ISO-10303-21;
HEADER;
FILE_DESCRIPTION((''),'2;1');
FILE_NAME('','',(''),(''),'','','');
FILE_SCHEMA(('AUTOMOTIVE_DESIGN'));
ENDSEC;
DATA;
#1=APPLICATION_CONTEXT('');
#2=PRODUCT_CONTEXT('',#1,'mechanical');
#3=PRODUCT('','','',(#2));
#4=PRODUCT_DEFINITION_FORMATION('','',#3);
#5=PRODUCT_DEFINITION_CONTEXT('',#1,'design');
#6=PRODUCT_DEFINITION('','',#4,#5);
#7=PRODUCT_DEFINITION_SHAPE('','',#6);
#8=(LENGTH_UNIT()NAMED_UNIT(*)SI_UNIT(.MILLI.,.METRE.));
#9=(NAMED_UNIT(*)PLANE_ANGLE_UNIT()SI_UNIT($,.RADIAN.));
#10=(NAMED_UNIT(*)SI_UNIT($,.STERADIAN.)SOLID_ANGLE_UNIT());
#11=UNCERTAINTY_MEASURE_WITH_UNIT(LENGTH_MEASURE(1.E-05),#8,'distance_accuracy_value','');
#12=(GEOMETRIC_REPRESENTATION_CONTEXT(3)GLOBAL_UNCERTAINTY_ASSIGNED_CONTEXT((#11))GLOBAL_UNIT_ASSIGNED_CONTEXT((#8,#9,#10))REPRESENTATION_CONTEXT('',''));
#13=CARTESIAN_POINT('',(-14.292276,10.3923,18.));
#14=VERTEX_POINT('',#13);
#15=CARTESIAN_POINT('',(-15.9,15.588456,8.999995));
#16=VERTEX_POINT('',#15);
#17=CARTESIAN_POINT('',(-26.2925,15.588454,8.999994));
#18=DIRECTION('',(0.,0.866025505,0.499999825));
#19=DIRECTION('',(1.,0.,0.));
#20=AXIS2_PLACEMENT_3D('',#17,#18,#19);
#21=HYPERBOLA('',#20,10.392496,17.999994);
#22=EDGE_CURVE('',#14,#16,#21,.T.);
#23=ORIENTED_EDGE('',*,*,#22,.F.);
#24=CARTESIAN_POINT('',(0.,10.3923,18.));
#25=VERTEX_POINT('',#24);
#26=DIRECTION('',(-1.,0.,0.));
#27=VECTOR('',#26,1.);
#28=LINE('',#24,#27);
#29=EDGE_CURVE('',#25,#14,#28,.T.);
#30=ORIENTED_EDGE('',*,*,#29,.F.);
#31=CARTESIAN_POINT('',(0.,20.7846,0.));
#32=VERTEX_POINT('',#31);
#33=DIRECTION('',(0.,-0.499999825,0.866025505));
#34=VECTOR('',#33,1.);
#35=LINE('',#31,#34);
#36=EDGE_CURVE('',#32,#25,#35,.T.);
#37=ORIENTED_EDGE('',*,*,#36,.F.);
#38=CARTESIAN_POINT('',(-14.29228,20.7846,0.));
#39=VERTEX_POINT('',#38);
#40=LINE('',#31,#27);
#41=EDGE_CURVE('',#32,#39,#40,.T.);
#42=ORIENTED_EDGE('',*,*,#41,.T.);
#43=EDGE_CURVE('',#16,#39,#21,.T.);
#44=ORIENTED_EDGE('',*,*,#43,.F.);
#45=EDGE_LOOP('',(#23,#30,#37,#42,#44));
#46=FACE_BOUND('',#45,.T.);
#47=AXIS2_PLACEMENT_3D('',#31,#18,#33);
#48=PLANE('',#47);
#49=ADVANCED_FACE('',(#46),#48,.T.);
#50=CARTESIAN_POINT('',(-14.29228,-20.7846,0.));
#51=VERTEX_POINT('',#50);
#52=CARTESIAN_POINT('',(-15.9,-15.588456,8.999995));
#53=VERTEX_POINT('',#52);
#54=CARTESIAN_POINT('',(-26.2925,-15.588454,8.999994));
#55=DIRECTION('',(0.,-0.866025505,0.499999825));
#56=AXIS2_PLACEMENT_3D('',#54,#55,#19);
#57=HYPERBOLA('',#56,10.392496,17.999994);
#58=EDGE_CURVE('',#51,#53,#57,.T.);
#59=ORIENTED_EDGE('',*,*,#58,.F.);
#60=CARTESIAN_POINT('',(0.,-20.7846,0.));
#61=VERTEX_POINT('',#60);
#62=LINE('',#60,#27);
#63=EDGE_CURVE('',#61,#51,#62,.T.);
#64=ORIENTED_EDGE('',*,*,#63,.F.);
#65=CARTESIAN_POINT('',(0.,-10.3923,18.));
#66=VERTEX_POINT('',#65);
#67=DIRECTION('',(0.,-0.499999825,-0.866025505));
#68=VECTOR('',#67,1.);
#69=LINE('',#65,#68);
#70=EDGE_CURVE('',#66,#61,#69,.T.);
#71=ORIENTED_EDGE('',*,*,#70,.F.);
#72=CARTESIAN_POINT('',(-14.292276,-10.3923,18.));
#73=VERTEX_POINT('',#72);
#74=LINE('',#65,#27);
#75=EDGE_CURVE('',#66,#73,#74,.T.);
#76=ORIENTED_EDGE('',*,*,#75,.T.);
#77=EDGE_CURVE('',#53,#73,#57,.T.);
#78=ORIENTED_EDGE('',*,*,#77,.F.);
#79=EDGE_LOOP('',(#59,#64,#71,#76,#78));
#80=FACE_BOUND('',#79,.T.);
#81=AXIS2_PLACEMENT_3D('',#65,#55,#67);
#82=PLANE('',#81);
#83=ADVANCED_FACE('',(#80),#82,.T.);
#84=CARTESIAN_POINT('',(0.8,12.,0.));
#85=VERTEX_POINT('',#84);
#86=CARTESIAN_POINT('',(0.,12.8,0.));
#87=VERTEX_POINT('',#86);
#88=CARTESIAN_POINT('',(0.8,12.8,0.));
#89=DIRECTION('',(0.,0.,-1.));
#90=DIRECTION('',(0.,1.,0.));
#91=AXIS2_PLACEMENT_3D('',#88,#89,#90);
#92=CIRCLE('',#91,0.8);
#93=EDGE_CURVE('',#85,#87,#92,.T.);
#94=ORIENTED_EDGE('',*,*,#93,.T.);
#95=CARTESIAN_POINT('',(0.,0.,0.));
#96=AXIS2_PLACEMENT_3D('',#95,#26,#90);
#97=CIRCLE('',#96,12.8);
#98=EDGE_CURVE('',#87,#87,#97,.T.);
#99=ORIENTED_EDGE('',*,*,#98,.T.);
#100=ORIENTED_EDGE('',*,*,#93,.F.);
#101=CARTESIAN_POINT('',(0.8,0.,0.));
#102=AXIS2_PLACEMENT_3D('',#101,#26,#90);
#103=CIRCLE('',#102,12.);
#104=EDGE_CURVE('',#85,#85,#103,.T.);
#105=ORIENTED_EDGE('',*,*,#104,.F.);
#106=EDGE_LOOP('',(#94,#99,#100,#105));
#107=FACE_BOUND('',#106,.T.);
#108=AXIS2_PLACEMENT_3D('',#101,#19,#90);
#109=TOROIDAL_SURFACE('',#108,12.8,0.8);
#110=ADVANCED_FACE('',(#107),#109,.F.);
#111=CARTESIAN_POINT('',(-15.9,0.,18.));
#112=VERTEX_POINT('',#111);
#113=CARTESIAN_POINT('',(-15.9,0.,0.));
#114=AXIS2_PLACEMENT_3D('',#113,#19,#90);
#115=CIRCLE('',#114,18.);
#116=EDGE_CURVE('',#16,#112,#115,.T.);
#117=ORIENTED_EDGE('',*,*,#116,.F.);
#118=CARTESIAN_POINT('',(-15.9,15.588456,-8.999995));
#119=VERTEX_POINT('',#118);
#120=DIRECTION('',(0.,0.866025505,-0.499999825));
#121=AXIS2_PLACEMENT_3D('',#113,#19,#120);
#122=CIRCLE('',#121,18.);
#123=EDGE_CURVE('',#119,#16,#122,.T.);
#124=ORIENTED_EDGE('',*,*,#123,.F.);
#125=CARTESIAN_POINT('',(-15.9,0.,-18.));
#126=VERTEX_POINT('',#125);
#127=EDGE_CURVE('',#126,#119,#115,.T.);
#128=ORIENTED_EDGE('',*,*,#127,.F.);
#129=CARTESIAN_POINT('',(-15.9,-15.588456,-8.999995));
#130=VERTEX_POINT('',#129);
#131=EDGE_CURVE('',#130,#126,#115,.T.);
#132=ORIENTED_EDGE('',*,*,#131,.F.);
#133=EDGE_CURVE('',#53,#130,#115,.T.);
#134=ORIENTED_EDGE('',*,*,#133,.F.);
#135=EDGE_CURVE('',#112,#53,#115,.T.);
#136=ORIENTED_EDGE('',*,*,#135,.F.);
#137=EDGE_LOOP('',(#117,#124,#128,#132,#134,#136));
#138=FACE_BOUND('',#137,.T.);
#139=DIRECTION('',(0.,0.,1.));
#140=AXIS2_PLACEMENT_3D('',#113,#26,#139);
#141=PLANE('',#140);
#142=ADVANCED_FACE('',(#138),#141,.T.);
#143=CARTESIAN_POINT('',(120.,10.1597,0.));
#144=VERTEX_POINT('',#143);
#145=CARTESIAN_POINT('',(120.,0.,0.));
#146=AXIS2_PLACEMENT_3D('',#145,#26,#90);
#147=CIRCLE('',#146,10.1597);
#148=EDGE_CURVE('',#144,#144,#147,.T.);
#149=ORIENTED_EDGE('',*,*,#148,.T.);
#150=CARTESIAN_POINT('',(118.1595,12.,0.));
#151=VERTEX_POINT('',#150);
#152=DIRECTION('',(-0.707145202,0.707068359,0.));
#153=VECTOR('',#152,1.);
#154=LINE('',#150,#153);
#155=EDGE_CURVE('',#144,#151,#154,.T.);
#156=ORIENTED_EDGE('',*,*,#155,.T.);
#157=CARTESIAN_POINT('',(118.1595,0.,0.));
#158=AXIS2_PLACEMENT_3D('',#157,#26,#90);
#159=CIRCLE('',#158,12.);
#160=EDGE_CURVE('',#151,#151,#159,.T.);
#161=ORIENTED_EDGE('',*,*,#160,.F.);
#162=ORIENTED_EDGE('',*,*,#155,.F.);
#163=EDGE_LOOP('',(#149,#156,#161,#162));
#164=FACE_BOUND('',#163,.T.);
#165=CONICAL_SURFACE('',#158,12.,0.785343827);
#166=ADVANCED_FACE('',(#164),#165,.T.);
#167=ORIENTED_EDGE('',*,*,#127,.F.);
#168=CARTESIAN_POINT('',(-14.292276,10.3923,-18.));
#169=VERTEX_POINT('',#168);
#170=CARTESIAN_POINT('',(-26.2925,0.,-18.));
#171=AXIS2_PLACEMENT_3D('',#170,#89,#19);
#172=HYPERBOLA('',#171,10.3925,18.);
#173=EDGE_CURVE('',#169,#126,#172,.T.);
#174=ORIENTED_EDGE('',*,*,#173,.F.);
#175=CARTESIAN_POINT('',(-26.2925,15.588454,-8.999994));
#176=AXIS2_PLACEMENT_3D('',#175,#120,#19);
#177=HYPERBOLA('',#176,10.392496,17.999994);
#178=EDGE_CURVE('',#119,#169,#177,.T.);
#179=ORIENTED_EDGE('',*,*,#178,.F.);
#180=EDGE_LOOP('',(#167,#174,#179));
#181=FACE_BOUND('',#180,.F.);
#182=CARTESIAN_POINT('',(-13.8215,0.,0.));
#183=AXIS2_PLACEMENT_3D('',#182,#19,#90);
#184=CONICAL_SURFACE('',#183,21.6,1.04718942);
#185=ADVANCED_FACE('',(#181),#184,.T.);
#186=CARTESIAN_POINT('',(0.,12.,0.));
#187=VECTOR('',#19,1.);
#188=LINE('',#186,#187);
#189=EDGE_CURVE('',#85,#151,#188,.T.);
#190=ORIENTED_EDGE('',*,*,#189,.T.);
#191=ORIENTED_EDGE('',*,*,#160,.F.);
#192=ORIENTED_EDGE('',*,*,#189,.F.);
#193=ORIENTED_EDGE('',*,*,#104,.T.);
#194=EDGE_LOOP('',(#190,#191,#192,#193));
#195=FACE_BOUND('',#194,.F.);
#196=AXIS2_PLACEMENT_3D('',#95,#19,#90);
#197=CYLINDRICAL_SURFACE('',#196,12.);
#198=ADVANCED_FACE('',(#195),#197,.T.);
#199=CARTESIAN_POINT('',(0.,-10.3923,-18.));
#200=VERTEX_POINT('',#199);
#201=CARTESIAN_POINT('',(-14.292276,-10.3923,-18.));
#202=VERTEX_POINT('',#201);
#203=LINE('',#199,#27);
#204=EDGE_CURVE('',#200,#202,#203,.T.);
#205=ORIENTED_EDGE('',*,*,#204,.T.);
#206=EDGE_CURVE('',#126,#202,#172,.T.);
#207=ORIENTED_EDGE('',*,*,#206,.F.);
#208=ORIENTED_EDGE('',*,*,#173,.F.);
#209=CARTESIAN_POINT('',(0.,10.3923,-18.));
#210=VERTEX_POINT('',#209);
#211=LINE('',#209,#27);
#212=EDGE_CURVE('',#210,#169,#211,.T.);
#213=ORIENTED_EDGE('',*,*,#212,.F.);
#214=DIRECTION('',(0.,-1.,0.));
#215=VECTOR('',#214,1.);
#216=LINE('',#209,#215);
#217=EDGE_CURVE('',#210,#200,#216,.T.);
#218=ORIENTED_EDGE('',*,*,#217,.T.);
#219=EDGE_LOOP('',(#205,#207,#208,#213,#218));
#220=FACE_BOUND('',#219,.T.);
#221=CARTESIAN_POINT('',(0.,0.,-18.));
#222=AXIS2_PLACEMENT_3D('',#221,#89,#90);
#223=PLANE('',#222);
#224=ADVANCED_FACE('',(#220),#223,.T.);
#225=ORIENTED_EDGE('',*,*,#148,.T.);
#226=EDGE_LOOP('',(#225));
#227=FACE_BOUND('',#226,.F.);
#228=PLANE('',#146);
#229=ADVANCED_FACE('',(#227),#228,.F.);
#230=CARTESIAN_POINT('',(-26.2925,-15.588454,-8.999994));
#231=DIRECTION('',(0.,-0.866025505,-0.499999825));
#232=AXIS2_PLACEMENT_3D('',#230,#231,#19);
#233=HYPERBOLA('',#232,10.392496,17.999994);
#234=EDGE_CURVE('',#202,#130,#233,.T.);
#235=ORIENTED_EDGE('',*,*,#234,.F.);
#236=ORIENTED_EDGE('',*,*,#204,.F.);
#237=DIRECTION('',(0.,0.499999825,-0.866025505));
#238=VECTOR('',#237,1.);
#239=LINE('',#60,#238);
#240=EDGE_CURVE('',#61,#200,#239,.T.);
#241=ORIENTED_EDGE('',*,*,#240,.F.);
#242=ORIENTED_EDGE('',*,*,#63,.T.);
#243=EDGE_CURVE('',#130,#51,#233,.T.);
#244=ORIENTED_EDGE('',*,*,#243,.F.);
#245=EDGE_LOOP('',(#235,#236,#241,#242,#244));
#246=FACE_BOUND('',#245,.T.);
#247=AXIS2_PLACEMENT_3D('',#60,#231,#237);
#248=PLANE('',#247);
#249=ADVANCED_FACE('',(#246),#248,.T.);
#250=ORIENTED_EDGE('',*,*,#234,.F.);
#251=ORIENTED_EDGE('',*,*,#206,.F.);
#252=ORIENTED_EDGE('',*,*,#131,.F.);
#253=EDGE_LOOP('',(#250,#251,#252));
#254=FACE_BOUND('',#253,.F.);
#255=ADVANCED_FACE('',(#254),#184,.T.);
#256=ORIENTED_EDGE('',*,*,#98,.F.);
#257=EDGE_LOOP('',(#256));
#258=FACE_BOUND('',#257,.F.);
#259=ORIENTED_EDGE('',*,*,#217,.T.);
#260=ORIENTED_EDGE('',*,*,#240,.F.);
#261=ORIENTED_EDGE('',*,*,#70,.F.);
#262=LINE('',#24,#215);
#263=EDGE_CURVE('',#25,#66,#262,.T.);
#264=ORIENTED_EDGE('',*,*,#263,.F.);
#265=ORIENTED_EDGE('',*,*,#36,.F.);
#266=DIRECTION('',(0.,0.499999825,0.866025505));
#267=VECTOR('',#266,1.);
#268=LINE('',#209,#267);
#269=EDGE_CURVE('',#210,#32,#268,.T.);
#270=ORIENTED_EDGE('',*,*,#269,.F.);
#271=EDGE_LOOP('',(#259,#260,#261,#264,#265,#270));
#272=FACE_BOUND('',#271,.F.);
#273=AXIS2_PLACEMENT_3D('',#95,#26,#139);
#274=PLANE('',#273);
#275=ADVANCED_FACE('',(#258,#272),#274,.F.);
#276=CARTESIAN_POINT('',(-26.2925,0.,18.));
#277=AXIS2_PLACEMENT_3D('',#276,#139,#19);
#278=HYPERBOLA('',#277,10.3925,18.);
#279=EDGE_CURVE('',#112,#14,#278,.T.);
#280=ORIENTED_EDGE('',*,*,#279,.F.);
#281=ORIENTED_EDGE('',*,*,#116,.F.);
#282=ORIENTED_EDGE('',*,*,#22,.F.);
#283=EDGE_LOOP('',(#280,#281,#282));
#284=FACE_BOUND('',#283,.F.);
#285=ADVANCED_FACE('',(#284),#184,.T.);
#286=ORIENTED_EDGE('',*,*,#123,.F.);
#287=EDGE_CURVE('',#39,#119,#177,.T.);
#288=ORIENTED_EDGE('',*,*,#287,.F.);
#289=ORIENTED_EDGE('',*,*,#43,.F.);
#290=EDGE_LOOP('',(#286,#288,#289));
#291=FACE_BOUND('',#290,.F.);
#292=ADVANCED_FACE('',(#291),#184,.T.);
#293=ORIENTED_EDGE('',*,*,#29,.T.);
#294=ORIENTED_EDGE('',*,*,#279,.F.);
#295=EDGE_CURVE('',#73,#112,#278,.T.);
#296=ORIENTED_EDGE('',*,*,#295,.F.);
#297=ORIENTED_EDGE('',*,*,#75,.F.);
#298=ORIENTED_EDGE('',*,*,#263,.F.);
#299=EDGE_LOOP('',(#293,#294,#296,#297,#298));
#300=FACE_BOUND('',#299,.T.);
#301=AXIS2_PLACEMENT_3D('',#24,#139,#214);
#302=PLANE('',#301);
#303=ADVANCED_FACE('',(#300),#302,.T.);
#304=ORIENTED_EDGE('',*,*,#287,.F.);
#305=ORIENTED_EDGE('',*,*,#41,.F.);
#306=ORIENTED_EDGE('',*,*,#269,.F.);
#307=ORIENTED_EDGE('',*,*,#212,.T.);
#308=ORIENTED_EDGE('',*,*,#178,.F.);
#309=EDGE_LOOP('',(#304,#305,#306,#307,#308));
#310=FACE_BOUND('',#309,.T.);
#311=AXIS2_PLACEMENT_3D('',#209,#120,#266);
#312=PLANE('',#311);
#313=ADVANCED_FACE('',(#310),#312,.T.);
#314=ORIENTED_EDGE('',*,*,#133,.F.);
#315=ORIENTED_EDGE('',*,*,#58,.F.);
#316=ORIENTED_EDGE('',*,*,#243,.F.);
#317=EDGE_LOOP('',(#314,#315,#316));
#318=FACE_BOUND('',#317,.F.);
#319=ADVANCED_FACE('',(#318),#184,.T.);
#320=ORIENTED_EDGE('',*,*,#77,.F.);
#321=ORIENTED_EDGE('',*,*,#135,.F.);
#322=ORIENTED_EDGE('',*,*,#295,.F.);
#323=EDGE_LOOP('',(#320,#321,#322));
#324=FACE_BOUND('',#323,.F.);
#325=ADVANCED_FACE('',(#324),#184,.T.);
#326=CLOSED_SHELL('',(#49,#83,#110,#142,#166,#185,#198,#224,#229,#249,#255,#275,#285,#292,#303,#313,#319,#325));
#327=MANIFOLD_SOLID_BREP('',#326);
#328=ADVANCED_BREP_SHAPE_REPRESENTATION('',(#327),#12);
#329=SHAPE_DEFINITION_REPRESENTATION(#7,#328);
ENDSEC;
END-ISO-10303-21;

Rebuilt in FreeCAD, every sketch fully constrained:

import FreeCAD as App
import Part
import Sketcher
Q = App.Units.Quantity


def edges_at(feature, points):
    """Names of the edges that pass closest to the given points."""
    edges = feature.Shape.Edges
    near = lambda p: min(range(len(edges)), key=lambda i: edges[i].distToShape(Part.Vertex(*p))[0])
    return sorted({f"Edge{near(p) + 1}" for p in points})


def add_polygon(sketch, points):
    """Adds a closed chain of lines whose ends are joined by coincident constraints."""
    first, n = sketch.GeometryCount, len(points)
    for a, b in zip(points, points[1:] + points[:1]):
        sketch.addGeometry(Part.LineSegment(App.Vector(*a, 0), App.Vector(*b, 0)), False)
    for i in range(n):
        sketch.addConstraint(Sketcher.Constraint("Coincident", first + i, 2, first + (i + 1) % n, 1))

doc = App.newDocument("Part")
params = doc.addObject("Spreadsheet::Sheet", "Params")
for row, (alias, value) in enumerate([
    ("sketch1_width", "120 mm"),
    ("sketch1_height", "12 mm"),
    ("revolution_angle", "360 deg"),
    ("pad1_length", "15.9 mm"),
    ("sketch3_height", "3.6 mm"),
    ("groove_angle", "360 deg"),
    ("chamfer_size", "1.8403 mm"),
    ("chamfer_size2", "1.8405 mm"),
    ("fillet_radius", "0.8 mm"),
], start=1):
    params.set(f"A{row}", alias)
    params.set(f"B{row}", "=" + value)
    params.setAlias(f"B{row}", alias)

body = doc.addObject("PartDesign::Body", "Body")

# Sketch on XY plane
sketch1 = doc.addObject("Sketcher::SketchObject", "Sketch")
body.addObject(sketch1)
sketch1.AttachmentSupport = (doc.XY_Plane, [""])
sketch1.MapMode = "FlatFace"
add_polygon(sketch1, [(120, 12), (0, 12), (0, 0), (120, 0)])  # lines 0-3
sketch1.addConstraint(Sketcher.Constraint("Horizontal", 0))
sketch1.addConstraint(Sketcher.Constraint("Vertical", 1))
sketch1.addConstraint(Sketcher.Constraint("Horizontal", 2))
sketch1.addConstraint(Sketcher.Constraint("Vertical", 3))
sketch1.addConstraint(Sketcher.Constraint("Coincident", 1, 2, -1, 1))
sketch1.addConstraint(Sketcher.Constraint("DistanceX", 0, 2, 0, 1, 120.0))
sketch1.addConstraint(Sketcher.Constraint("DistanceY", 1, 2, 1, 1, 12.0))
sketch1.setExpression("Constraints[9]", "Params.sketch1_width")
sketch1.setExpression("Constraints[10]", "Params.sketch1_height")
revolution = doc.addObject("PartDesign::Revolution", "Revolution")
body.addObject(revolution)
revolution.Profile = sketch1
revolution.ReferenceAxis = (sketch1, ["H_Axis"])
revolution.setExpression("Angle", "Params.revolution_angle")

# Sketch on YZ plane
sketch2 = doc.addObject("Sketcher::SketchObject", "Sketch001")
body.addObject(sketch2)
sketch2.AttachmentSupport = (doc.YZ_Plane, [""])
sketch2.MapMode = "FlatFace"
add_polygon(sketch2, [(10, -18), (-10, -18), (-21, 0), (-10, 18), (10, 18), (21, 0)])  # lines 0-5
sketch2.addConstraint(Sketcher.Constraint("Horizontal", 0))
sketch2.addConstraint(Sketcher.Constraint("Horizontal", 3))
sketch2.addConstraint(Sketcher.Constraint("Symmetric", 0, 2, 3, 2, -1, 1))
sketch2.addConstraint(Sketcher.Constraint("Symmetric", 1, 2, 4, 2, -1, 1))
sketch2.addConstraint(Sketcher.Constraint("PointOnObject", 1, 2, -1))
sketch2.addConstraint(Sketcher.Constraint("Parallel", 2, 5))
sketch2.addConstraint(Sketcher.Constraint("Vertical", 0, 2, 2, 2))
sketch2.addConstraint(Sketcher.Constraint("DistanceY", 0, 2, 2, 2, 36.0))
sketch2.addConstraint(Sketcher.Constraint("Angle", 1, Q("120 deg")))
sketch2.addConstraint(Sketcher.Constraint("DistanceX", 0, 2, 0, 1, 20.7846))
pad1 = doc.addObject("PartDesign::Pad", "Pad")
body.addObject(pad1)
pad1.Profile = sketch2
pad1.setExpression("Length", "Params.pad1_length")
pad1.Reversed = True

# Sketch on XY plane
sketch3 = doc.addObject("Sketcher::SketchObject", "Sketch002")
body.addObject(sketch3)
sketch3.AttachmentSupport = (doc.XY_Plane, [""])
sketch3.MapMode = "FlatFace"
add_polygon(sketch3, [(-15.9, 18), (-13.8, 21.6), (-15.9, 21.6)])  # lines 0-2
sketch3.addConstraint(Sketcher.Constraint("Horizontal", 1))
sketch3.addConstraint(Sketcher.Constraint("Vertical", 2))
sketch3.addConstraint(Sketcher.Constraint("DistanceX", 1, 2, -1, 1, 15.9))
sketch3.addConstraint(Sketcher.Constraint("Angle", 0, Q("59.9995 deg")))
sketch3.addConstraint(Sketcher.Constraint("DistanceY", 2, 2, 2, 1, 3.6))
sketch3.addConstraint(Sketcher.Constraint("DistanceY", -1, 1, 2, 2, 18.0))
sketch3.setExpression("Constraints[7]", "Params.sketch3_height")
groove = doc.addObject("PartDesign::Groove", "Groove")
body.addObject(groove)
groove.Profile = sketch3
groove.ReferenceAxis = (sketch3, ["H_Axis"])
groove.setExpression("Angle", "Params.groove_angle")
doc.recompute()

chamfer = doc.addObject("PartDesign::Chamfer", "Chamfer")
body.addObject(chamfer)
chamfer.Base = (groove, edges_at(groove, [(120, -12, 0)]))
chamfer.ChamferType = "Two distances"
chamfer.setExpression("Size", "Params.chamfer_size")
chamfer.setExpression("Size2", "Params.chamfer_size2")
doc.recompute()

fillet = doc.addObject("PartDesign::Fillet", "Fillet")
body.addObject(fillet)
fillet.Base = (chamfer, edges_at(chamfer, [(0, -12, 0)]))
fillet.setExpression("Radius", "Params.fillet_radius")

doc.recompute()
